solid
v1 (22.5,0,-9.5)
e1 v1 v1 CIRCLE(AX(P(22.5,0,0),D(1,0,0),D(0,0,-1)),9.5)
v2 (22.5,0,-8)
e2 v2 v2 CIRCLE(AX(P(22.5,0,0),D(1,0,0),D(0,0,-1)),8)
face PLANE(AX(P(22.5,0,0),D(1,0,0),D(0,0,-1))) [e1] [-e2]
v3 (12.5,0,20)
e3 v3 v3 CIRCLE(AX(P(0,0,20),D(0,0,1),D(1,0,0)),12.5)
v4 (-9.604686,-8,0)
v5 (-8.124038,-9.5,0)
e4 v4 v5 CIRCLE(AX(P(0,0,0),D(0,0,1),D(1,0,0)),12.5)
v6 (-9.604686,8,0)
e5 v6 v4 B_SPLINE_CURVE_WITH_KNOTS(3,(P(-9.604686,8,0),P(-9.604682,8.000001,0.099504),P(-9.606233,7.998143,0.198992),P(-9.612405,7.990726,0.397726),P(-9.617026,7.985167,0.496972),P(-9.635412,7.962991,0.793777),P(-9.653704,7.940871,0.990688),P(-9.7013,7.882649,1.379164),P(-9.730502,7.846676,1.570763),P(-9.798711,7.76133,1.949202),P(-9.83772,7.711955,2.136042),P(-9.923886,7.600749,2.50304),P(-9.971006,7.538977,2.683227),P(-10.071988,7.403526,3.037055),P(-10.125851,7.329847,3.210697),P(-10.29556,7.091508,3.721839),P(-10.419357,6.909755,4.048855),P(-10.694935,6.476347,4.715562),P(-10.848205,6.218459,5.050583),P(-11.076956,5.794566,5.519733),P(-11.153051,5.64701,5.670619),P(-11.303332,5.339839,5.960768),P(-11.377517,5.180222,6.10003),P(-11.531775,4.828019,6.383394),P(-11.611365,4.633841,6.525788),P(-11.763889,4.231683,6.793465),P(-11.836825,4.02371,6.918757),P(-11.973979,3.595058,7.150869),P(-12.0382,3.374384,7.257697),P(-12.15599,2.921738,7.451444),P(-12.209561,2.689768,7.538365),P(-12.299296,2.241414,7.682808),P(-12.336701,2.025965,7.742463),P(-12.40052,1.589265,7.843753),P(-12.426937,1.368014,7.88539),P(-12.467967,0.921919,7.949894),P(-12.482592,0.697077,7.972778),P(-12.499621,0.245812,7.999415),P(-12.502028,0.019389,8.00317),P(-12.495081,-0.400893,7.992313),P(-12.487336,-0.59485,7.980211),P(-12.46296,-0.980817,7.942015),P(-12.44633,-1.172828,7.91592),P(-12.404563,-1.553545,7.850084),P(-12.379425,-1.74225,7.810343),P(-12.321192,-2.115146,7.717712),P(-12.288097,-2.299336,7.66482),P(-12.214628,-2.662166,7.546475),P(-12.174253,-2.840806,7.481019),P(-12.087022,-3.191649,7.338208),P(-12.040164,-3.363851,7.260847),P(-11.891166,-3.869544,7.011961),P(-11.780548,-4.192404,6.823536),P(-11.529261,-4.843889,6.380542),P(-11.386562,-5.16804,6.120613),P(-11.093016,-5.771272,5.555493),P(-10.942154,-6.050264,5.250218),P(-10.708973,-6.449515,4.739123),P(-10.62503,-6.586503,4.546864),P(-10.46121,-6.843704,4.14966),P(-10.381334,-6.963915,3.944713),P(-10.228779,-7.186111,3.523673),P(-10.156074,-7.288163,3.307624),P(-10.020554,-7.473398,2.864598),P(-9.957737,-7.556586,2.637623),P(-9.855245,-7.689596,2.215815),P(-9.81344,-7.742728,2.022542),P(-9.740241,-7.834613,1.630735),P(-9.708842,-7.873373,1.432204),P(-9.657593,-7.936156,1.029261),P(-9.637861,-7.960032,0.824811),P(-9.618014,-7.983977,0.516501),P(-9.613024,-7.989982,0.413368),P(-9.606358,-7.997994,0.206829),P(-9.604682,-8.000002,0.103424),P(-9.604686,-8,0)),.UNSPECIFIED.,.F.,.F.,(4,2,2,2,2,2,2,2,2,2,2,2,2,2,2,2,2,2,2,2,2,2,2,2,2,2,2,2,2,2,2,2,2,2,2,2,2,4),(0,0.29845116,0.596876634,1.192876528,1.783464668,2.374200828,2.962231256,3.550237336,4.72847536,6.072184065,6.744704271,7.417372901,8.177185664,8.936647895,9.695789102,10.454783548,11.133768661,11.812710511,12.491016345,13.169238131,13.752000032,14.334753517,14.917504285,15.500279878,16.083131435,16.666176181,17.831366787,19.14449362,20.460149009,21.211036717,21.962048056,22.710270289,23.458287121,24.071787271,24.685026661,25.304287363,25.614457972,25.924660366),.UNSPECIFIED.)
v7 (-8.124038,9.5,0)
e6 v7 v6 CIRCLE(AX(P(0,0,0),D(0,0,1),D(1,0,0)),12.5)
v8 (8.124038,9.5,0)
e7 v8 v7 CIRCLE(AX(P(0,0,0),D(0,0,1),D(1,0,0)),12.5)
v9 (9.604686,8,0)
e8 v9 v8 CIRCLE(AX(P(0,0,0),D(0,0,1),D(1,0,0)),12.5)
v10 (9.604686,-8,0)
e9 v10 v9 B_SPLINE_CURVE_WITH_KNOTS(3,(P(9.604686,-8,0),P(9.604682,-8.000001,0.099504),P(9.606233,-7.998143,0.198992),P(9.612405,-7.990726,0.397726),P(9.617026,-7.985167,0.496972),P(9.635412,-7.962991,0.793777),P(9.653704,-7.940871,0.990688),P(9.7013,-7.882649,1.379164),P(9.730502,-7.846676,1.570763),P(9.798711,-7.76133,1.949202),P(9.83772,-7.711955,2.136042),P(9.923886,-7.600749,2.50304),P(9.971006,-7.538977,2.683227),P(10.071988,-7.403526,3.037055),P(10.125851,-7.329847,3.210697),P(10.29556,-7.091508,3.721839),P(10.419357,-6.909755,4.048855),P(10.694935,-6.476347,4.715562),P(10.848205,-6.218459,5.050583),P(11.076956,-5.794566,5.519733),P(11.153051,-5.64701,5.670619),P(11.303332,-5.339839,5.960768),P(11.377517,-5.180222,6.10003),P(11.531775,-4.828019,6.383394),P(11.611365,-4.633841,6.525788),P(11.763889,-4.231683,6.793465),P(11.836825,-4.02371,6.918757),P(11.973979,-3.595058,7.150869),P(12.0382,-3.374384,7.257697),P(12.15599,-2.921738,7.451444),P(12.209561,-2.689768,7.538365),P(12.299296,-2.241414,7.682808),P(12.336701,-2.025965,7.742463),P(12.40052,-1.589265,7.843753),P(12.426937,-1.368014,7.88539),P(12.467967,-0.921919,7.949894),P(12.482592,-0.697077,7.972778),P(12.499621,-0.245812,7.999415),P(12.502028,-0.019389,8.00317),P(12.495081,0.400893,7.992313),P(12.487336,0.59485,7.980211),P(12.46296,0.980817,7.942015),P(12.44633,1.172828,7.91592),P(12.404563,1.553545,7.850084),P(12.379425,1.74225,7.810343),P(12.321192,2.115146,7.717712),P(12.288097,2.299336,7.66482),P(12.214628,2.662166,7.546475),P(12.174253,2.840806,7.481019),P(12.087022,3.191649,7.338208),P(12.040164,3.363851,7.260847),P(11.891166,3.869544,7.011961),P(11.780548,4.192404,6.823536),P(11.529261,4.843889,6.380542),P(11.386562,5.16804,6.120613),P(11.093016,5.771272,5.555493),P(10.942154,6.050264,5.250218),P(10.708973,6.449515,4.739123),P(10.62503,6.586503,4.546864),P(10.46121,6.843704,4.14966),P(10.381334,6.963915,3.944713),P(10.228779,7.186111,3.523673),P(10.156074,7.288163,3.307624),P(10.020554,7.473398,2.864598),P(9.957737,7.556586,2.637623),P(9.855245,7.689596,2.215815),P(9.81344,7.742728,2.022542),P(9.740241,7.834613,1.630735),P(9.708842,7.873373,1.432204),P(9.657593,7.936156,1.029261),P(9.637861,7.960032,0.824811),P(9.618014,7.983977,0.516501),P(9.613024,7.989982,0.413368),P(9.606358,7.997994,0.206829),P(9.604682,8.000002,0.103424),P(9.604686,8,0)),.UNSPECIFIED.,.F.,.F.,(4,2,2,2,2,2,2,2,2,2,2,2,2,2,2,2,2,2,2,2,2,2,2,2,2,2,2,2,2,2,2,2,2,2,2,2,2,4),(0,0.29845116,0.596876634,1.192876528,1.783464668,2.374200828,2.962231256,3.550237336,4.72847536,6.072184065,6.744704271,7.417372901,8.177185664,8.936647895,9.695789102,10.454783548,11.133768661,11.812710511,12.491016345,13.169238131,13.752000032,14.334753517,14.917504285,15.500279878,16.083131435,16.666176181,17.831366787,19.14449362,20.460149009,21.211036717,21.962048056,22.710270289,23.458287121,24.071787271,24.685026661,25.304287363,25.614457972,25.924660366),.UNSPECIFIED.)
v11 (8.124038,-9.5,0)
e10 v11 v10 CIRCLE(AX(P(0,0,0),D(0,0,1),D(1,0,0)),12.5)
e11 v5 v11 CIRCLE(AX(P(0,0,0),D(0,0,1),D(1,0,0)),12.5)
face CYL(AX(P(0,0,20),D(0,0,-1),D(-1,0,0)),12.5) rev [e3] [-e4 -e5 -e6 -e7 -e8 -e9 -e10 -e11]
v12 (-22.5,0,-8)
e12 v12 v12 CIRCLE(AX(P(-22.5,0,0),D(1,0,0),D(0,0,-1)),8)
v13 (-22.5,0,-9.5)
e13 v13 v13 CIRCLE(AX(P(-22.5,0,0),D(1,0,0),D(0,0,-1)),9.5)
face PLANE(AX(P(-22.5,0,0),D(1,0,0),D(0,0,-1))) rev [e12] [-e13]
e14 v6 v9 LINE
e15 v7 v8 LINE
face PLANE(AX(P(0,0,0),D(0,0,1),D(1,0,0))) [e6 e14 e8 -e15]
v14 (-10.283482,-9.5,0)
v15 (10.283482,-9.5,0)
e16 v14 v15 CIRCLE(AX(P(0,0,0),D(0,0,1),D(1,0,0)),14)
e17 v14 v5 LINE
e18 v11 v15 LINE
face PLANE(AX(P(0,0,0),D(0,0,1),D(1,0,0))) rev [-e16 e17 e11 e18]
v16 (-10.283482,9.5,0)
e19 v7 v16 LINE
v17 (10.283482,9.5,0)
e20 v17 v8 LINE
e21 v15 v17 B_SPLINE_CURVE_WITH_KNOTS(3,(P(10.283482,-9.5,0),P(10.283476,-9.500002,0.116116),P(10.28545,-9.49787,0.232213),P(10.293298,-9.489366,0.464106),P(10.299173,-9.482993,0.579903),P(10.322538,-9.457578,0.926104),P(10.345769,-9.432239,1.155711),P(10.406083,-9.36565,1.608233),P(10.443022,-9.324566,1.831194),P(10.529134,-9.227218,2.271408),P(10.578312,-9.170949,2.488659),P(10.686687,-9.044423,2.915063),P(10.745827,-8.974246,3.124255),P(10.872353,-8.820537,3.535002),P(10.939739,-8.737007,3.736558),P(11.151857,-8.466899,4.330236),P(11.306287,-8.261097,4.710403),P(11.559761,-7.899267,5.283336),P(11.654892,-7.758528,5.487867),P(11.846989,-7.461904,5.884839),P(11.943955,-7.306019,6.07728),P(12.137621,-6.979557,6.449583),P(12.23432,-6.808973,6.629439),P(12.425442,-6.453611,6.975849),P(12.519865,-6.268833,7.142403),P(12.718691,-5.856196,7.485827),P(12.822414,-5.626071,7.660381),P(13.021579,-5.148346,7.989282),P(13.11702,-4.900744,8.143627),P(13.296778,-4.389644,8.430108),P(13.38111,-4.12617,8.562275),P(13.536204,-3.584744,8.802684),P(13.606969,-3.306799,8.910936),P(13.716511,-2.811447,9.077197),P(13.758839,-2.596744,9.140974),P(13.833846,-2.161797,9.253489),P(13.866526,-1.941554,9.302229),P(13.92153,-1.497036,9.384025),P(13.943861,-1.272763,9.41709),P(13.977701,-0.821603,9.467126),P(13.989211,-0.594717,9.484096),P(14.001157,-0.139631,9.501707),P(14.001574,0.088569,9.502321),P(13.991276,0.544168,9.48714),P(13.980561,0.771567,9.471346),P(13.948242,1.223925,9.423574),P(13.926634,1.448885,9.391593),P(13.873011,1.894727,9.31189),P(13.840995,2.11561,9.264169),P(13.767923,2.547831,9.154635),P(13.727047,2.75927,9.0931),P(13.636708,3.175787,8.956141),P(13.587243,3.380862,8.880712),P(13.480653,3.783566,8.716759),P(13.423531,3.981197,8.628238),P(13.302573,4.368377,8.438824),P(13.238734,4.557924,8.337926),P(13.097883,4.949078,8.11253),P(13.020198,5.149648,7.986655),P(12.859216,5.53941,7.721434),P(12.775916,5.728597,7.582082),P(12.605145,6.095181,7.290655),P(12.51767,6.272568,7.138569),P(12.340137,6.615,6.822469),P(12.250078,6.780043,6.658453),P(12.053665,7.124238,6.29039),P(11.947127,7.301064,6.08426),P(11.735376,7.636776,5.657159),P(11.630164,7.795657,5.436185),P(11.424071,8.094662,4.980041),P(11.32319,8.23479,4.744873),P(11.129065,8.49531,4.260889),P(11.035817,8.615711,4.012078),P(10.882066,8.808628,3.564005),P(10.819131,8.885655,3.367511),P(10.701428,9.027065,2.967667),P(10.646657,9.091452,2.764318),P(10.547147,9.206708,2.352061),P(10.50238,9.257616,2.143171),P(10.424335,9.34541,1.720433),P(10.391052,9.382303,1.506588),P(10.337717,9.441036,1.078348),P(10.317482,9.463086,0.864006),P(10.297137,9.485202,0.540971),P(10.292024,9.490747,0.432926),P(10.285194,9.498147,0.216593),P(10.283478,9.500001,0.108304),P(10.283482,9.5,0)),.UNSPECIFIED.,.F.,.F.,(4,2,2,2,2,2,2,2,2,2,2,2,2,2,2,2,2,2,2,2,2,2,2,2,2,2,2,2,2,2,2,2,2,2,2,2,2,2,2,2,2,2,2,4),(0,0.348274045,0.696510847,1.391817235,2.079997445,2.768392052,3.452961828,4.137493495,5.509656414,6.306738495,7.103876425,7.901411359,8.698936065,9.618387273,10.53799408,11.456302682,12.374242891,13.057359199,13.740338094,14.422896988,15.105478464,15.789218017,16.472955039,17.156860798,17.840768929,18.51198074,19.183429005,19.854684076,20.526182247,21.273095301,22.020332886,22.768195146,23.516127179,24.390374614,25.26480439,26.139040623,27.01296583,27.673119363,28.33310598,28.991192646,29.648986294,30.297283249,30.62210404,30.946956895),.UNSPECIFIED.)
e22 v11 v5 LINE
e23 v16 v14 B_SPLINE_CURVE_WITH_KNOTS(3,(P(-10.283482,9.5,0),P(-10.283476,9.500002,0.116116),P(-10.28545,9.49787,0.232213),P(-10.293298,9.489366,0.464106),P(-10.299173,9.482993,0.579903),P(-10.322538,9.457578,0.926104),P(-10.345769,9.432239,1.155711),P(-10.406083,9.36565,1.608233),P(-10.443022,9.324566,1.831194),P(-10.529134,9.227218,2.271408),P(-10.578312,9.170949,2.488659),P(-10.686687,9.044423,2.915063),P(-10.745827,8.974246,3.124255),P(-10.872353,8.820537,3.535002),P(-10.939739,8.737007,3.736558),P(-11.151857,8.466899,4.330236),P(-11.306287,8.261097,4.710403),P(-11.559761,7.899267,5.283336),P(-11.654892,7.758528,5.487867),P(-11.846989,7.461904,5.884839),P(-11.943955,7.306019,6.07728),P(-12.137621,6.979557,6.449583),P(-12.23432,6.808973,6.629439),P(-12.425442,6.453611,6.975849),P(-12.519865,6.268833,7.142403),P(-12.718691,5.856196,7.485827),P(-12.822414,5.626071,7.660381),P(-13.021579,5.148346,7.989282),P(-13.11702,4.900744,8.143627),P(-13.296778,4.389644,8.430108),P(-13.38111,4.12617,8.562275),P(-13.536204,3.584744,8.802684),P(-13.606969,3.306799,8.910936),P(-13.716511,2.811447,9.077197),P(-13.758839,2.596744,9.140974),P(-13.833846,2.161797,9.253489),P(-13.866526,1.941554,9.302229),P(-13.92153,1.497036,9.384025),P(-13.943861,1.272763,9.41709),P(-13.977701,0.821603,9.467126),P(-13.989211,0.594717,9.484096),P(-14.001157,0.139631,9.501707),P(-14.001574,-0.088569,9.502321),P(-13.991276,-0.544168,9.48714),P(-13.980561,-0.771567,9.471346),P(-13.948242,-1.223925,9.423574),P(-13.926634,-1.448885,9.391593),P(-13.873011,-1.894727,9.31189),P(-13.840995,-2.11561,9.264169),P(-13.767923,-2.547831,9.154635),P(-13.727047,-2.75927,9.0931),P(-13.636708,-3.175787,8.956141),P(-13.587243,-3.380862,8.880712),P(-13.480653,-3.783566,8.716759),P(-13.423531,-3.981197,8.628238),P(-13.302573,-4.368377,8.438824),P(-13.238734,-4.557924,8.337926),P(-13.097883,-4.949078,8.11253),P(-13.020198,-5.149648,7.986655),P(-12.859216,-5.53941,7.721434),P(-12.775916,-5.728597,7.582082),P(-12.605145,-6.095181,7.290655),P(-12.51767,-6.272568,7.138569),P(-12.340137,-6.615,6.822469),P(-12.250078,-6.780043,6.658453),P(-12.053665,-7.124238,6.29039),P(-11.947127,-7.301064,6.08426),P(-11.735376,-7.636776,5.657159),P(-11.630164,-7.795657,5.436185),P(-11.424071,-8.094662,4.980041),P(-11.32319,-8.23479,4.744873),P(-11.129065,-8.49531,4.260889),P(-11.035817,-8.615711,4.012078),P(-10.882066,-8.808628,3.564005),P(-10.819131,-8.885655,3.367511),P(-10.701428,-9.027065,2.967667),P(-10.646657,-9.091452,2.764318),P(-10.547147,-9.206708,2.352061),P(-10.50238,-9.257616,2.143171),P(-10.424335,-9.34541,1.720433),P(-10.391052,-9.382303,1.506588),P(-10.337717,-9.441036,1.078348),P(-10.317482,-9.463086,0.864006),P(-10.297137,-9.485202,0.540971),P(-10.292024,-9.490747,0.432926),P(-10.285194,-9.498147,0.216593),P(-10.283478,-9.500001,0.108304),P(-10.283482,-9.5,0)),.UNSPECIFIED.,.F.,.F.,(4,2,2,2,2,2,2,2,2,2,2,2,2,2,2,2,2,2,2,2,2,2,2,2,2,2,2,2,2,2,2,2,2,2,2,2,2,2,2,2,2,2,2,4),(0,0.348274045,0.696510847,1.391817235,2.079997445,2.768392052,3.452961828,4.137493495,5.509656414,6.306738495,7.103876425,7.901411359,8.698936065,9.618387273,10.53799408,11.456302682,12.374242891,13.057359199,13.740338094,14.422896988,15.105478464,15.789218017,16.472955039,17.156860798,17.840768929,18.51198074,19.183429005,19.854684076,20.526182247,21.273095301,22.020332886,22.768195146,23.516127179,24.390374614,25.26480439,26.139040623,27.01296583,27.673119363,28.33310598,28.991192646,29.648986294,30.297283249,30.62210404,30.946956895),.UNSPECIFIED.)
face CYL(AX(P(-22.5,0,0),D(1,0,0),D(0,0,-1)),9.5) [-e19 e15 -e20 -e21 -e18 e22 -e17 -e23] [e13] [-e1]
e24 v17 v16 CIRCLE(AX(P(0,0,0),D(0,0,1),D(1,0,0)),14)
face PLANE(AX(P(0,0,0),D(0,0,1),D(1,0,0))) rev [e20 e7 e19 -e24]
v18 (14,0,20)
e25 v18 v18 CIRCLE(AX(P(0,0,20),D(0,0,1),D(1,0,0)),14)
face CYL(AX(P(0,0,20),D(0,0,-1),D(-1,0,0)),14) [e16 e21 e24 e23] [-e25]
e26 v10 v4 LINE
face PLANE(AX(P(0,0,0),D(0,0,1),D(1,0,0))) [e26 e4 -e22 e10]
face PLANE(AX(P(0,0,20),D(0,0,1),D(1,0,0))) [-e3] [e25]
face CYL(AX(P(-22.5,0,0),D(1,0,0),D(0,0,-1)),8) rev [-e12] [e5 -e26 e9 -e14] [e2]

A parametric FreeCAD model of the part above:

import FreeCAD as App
import Part
import Sketcher

V = App.Vector

doc = App.newDocument("Part")
body = doc.addObject("PartDesign::Body", "Body")

sketch1 = doc.addObject("Sketcher::SketchObject", "Sketch")
body.addObject(sketch1)
sketch1.AttachmentSupport = (doc.XY_Plane, [""])
sketch1.MapMode = "FlatFace"
sketch1.addGeometry([
    Part.Circle(V(0, 0, 0), V(0, 0, 1), 14),
    Part.Circle(V(0, 0, 0), V(0, 0, 1), 12),
], False)
sketch1.addConstraint([
    Sketcher.Constraint("Coincident", 0, 3, -1, 1),
    Sketcher.Constraint("Coincident", 1, 3, -1, 1),
    Sketcher.Constraint("Diameter", 0, 28.0),
    Sketcher.Constraint("Diameter", 1, 25.0),
])
pad1 = doc.addObject("PartDesign::Pad", "Pad")
body.addObject(pad1)
pad1.Profile = sketch1
pad1.Length = 20

sketch2 = doc.addObject("Sketcher::SketchObject", "Sketch001")
body.addObject(sketch2)
sketch2.AttachmentSupport = (doc.YZ_Plane, [""])
sketch2.MapMode = "FlatFace"
sketch2.addGeometry([
    Part.Circle(V(0, 0, 0), V(0, 0, 1), 10),
    Part.Circle(V(0, 0, 0), V(0, 0, 1), 8),
], False)
sketch2.addConstraint([
    Sketcher.Constraint("Coincident", 0, 3, -1, 1),
    Sketcher.Constraint("Coincident", 1, 3, -1, 1),
    Sketcher.Constraint("Diameter", 0, 19.0),
    Sketcher.Constraint("Diameter", 1, 16.0),
])
pad2 = doc.addObject("PartDesign::Pad", "Pad001")
body.addObject(pad2)
pad2.Profile = sketch2
pad2.Type = "TwoLengths"
pad2.Length = 22.5
pad2.Length2 = 22.5

sketch3 = doc.addObject("Sketcher::SketchObject", "Sketch002")
body.addObject(sketch3)
sketch3.AttachmentSupport = (doc.XY_Plane, [""])
sketch3.MapMode = "FlatFace"
sketch3.AttachmentOffset = App.Placement(V(0, 0, 20), App.Rotation())
sketch3.addGeometry(Part.Circle(V(0, 0, 0), V(0, 0, 1), 12), False)
sketch3.addConstraint([
    Sketcher.Constraint("Coincident", 0, 3, -1, 1),
    Sketcher.Constraint("Diameter", 0, 25.0),
])
pocket1 = doc.addObject("PartDesign::Pocket", "Pocket")
body.addObject(pocket1)
pocket1.Profile = sketch3
pocket1.Type = "TwoLengths"
pocket1.Length = 40.65476
pocket1.Length2 = 20
pocket1.Reversed = True

sketch4 = doc.addObject("Sketcher::SketchObject", "Sketch003")
body.addObject(sketch4)
sketch4.AttachmentSupport = (doc.YZ_Plane, [""])
sketch4.MapMode = "FlatFace"
sketch4.AttachmentOffset = App.Placement(V(0, 0, 22.5), App.Rotation())
sketch4.addGeometry(Part.Circle(V(0, 0, 0), V(0, 0, 1), 8), False)
sketch4.addConstraint([
    Sketcher.Constraint("Coincident", 0, 3, -1, 1),
    Sketcher.Constraint("Diameter", 0, 16.0),
])
pocket2 = doc.addObject("PartDesign::Pocket", "Pocket001")
body.addObject(pocket2)
pocket2.Profile = sketch4
pocket2.Type = "ThroughAll"
pocket2.Midplane = True

doc.recompute()
